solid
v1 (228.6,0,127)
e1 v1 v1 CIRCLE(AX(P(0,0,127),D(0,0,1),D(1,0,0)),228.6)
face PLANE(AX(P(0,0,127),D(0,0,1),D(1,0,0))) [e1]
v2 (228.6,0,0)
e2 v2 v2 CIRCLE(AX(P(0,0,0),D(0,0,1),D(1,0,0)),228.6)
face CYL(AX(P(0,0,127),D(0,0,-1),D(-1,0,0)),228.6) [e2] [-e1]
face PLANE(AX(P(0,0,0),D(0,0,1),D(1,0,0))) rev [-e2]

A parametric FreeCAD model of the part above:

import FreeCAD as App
import Part
import Sketcher

V = App.Vector
Q = App.Units.Quantity

doc = App.newDocument("Part")
body = doc.addObject("PartDesign::Body", "Body")

sketch1 = body.newObject("Sketcher::SketchObject", "Sketch")
sketch1.AttachmentSupport = (doc.getObject("XY_Plane"), [""])
sketch1.MapMode = "FlatFace"
sketch1.addGeometry(Part.Circle(V(0, 0, 0), V(0, 0, 1), 229), False)
sketch1.addConstraint(Sketcher.Constraint("Coincident", 0, 3, -1, 1))
sketch1.addConstraint(Sketcher.Constraint("Diameter", 0, Q("18 in")))
pad1 = body.newObject("PartDesign::Pad", "Pad")
pad1.Profile = sketch1
pad1.Length = Q("5 in")

doc.recompute()
